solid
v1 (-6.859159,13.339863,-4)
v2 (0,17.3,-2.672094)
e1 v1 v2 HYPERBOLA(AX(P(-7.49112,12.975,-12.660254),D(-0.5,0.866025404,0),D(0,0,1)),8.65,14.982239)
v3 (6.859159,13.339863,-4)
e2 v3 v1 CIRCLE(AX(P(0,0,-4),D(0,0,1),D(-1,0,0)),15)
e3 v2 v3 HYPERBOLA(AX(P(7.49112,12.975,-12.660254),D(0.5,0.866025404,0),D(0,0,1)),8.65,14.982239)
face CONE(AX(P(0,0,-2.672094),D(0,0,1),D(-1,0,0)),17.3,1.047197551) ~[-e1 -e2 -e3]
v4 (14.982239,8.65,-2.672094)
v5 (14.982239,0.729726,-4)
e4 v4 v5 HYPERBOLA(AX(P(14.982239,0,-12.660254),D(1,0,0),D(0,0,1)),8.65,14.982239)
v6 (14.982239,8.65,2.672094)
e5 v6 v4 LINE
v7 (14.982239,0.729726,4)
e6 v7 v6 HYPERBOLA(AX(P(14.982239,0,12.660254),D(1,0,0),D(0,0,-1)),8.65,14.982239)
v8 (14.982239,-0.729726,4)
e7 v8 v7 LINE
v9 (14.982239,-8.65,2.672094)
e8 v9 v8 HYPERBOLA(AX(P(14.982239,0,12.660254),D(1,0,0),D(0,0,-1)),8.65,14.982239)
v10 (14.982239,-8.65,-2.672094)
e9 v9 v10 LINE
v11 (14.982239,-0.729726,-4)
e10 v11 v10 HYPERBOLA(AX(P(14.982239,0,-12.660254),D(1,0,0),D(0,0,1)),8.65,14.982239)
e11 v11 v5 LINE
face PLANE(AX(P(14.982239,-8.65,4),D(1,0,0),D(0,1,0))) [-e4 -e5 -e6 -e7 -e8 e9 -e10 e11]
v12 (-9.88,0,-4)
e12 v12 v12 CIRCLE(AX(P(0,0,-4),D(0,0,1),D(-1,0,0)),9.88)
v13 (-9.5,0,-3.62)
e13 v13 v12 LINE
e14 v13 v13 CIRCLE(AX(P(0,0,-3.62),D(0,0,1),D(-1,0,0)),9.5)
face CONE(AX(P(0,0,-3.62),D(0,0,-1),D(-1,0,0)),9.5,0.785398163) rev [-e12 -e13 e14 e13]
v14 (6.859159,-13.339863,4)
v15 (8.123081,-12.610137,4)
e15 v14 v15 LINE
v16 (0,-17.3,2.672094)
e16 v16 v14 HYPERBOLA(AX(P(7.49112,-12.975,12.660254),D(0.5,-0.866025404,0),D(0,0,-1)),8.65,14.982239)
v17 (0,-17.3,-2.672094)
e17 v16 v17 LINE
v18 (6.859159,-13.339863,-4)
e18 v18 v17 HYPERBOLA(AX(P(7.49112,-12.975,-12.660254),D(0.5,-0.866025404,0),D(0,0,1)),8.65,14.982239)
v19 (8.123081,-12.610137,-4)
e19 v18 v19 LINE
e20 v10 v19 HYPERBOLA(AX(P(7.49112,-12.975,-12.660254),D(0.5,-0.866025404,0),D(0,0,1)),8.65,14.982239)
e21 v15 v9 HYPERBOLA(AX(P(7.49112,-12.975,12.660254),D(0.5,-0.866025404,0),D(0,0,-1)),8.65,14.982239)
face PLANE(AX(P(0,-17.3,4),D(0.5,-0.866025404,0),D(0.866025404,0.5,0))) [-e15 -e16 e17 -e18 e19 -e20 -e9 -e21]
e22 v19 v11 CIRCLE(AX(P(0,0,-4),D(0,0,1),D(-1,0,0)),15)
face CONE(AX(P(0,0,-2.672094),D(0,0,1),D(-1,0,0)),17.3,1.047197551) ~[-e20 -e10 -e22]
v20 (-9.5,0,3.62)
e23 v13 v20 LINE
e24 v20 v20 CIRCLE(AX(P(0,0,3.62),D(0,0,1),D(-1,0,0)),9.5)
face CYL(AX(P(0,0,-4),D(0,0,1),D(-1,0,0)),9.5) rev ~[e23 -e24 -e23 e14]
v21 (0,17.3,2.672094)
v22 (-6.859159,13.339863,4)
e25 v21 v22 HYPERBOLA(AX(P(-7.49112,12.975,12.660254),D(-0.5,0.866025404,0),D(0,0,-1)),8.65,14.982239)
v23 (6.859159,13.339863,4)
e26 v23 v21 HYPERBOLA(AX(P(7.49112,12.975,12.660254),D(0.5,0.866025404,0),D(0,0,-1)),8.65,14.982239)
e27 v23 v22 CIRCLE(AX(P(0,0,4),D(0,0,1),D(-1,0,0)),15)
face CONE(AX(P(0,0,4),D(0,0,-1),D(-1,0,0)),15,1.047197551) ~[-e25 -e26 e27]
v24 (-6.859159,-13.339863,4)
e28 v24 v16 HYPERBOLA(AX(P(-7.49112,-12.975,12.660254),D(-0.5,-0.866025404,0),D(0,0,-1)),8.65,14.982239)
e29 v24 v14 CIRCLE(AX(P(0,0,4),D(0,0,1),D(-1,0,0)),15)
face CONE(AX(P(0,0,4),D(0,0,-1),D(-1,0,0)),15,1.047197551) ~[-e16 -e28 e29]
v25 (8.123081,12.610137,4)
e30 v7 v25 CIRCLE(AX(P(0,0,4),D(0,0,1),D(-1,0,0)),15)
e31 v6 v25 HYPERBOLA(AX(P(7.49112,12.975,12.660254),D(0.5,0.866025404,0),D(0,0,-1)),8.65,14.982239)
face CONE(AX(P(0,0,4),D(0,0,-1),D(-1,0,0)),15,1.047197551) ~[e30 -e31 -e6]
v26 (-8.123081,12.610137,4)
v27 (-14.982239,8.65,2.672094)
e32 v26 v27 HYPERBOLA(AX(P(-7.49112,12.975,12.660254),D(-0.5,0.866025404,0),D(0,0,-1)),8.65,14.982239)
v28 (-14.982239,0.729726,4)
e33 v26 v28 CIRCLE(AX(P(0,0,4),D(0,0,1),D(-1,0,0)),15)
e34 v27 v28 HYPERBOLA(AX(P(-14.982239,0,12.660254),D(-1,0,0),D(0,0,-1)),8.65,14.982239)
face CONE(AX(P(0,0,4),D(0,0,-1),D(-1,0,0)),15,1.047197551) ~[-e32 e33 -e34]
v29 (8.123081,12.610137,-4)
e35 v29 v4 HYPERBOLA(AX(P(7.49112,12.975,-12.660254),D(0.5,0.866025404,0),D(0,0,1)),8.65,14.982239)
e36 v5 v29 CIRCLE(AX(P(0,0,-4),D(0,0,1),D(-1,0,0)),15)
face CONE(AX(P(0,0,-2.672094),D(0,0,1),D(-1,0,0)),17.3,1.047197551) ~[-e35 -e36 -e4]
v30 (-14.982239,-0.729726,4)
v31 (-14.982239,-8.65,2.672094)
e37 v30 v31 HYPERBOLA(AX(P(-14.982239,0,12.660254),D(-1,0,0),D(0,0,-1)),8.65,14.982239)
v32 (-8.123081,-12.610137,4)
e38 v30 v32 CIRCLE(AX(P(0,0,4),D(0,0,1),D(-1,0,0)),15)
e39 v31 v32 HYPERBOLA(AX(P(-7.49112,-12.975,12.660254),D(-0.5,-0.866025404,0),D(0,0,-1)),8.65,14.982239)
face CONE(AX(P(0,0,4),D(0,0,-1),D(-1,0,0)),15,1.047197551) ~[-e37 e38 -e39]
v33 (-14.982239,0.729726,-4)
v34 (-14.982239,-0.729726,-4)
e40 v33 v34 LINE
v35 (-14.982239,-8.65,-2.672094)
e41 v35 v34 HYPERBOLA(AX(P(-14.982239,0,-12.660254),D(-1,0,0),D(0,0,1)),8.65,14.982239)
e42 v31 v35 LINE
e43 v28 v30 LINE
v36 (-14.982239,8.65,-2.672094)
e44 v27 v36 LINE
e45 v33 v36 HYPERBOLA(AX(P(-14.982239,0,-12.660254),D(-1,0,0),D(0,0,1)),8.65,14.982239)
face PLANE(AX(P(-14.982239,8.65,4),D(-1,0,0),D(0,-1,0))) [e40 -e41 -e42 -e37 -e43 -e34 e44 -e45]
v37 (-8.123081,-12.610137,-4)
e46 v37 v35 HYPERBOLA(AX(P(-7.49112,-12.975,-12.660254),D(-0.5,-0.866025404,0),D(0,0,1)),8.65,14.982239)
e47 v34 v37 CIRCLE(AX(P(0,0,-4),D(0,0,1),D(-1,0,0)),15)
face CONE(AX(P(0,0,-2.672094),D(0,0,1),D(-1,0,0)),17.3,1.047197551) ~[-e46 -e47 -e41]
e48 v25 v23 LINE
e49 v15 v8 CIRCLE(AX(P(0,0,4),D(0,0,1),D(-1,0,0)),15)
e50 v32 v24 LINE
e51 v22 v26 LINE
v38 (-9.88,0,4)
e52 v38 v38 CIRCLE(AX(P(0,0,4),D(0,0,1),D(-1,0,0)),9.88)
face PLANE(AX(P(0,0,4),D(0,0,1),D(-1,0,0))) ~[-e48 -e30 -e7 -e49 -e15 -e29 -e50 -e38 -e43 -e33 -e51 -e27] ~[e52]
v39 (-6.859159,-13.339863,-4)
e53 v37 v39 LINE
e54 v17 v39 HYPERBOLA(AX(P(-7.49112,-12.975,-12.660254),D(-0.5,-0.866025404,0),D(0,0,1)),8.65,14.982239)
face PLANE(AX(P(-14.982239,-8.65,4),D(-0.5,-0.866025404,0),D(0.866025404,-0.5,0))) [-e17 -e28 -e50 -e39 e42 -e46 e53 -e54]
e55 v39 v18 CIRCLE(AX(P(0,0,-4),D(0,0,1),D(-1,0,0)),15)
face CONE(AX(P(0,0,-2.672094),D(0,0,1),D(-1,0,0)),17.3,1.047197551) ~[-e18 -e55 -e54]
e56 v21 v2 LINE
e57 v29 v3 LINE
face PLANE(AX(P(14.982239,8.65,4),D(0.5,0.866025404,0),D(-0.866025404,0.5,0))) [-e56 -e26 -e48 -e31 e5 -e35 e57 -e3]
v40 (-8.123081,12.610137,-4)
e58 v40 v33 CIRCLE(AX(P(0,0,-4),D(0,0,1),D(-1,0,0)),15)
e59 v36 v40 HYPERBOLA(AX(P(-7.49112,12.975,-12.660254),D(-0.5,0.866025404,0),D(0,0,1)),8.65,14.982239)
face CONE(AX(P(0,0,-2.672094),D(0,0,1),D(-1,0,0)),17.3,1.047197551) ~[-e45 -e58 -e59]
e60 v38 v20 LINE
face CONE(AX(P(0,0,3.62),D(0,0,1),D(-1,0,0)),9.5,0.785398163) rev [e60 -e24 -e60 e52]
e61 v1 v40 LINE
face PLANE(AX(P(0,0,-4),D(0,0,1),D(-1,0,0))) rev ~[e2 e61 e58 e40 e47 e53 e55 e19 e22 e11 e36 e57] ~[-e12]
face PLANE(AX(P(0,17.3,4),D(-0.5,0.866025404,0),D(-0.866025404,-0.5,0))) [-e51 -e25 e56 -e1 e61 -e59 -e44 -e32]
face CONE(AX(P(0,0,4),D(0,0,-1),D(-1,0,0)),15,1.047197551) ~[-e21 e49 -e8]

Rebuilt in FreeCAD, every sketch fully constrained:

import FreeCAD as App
import Part
import Sketcher

V = App.Vector
Q = App.Units.Quantity


def edges_at(feature, points):
    """Names of the edges that pass closest to the given points."""
    edges = feature.Shape.Edges
    near = lambda p: min(range(len(edges)), key=lambda i: edges[i].distToShape(Part.Vertex(*p))[0])
    return sorted({f"Edge{near(p) + 1}" for p in points})

doc = App.newDocument("Part")
body = doc.addObject("PartDesign::Body", "Body")

# Sketch on YZ plane
sketch1 = body.newObject("Sketcher::SketchObject", "Sketch")
sketch1.AttachmentSupport = (doc.getObject("YZ_Plane"), [""])
sketch1.MapMode = "FlatFace"
sketch1.addGeometry([
    Part.LineSegment(V(15, 4, 0), V(9.5, 4, 0)),  # 0
    Part.LineSegment(V(9.5, 4, 0), V(9.5, -4, 0)),  # 1
    Part.LineSegment(V(9.5, -4, 0), V(15, -4, 0)),  # 2
    Part.LineSegment(V(15, -4, 0), V(17.3, -2.7, 0)),  # 3
    Part.LineSegment(V(17.3, -2.7, 0), V(17.3, 2.7, 0)),  # 4
    Part.LineSegment(V(17.3, 2.7, 0), V(15, 4, 0)),  # 5
], False)
sketch1.addConstraint([
    Sketcher.Constraint("Coincident", 0, 2, 1, 1),
    Sketcher.Constraint("Coincident", 1, 2, 2, 1),
    Sketcher.Constraint("Coincident", 2, 2, 3, 1),
    Sketcher.Constraint("Coincident", 3, 2, 4, 1),
    Sketcher.Constraint("Coincident", 4, 2, 5, 1),
    Sketcher.Constraint("Coincident", 5, 2, 0, 1),
    Sketcher.Constraint("Horizontal", 0),
    Sketcher.Constraint("Vertical", 1),
    Sketcher.Constraint("Horizontal", 2),
    Sketcher.Constraint("Vertical", 4),
    Sketcher.Constraint("Symmetric", 2, 2, 5, 2, -1),
    Sketcher.Constraint("Equal", 3, 5),
    Sketcher.Constraint("DistanceY", 1, 2, 1, 1, 8.0),
    Sketcher.Constraint("Angle", 3, Q("30 deg")),
    Sketcher.Constraint("DistanceX", 0, 2, 0, 1, 5.5),
    Sketcher.Constraint("DistanceX", -1, 1, 2, 2, 15.0),
    Sketcher.Constraint("DistanceX", -1, 1, 3, 2, 17.3),
])
revolution = body.newObject("PartDesign::Revolution", "Revolution")
revolution.Profile = sketch1
revolution.ReferenceAxis = (sketch1, ["V_Axis"])
revolution.Angle = 360

# Sketch on XY plane
sketch2 = body.newObject("Sketcher::SketchObject", "Sketch001")
sketch2.AttachmentSupport = (doc.getObject("XY_Plane"), [""])
sketch2.MapMode = "FlatFace"
sketch2.AttachmentOffset = App.Placement(V(0, 0, 4), App.Rotation())
sketch2.addGeometry([
    Part.LineSegment(V(-23, 23, 0), V(-23, -23, 0)),  # 0
    Part.LineSegment(V(-23, -23, 0), V(23, -23, 0)),  # 1
    Part.LineSegment(V(23, -23, 0), V(23, 23, 0)),  # 2
    Part.LineSegment(V(23, 23, 0), V(-23, 23, 0)),  # 3
    Part.LineSegment(V(15, 9, 0), V(15, -9, 0)),  # 4
    Part.LineSegment(V(15, -9, 0), V(0, -17, 0)),  # 5
    Part.LineSegment(V(0, -17, 0), V(-15, -9, 0)),  # 6
    Part.LineSegment(V(-15, -9, 0), V(-15, 9, 0)),  # 7
    Part.LineSegment(V(-15, 9, 0), V(0, 17, 0)),  # 8
    Part.LineSegment(V(0, 17, 0), V(15, 9, 0)),  # 9
], False)
sketch2.addConstraint([
    Sketcher.Constraint("Coincident", 0, 2, 1, 1),
    Sketcher.Constraint("Coincident", 1, 2, 2, 1),
    Sketcher.Constraint("Coincident", 2, 2, 3, 1),
    Sketcher.Constraint("Coincident", 3, 2, 0, 1),
    Sketcher.Constraint("Coincident", 4, 2, 5, 1),
    Sketcher.Constraint("Coincident", 5, 2, 6, 1),
    Sketcher.Constraint("Coincident", 6, 2, 7, 1),
    Sketcher.Constraint("Coincident", 7, 2, 8, 1),
    Sketcher.Constraint("Coincident", 8, 2, 9, 1),
    Sketcher.Constraint("Coincident", 9, 2, 4, 1),
    Sketcher.Constraint("Vertical", 0),
    Sketcher.Constraint("Horizontal", 1),
    Sketcher.Constraint("Vertical", 2),
    Sketcher.Constraint("Horizontal", 3),
    Sketcher.Constraint("Vertical", 4),
    Sketcher.Constraint("Vertical", 7),
    Sketcher.Constraint("Symmetric", 0, 2, 2, 2, -1, 1),
    Sketcher.Constraint("Symmetric", 4, 2, 7, 2, -1, 1),
    Sketcher.Constraint("Symmetric", 5, 2, 8, 2, -1, 1),
    Sketcher.Constraint("PointOnObject", 5, 2, -2),
    Sketcher.Constraint("Parallel", 6, 9),
    Sketcher.Constraint("Horizontal", 4, 2, 6, 2),
    Sketcher.Constraint("Equal", 3, 0),
    Sketcher.Constraint("Angle", 5, Q("-150 deg")),
    Sketcher.Constraint("DistanceY", 4, 2, 4, 1, 17.3),
    Sketcher.Constraint("Distance", 5, 17.3),
    Sketcher.Constraint("DistanceX", 1, 1, 1, 2, 46.516),
])
pocket1 = body.newObject("PartDesign::Pocket", "Pocket")
pocket1.Profile = sketch2
pocket1.Type = "ThroughAll"
doc.recompute()

chamfer = body.newObject("PartDesign::Chamfer", "Chamfer")
chamfer.Base = (pocket1, edges_at(pocket1, [(9.5, 0, 4), (9.5, 0, -4)]))
chamfer.Size = 0.38

doc.recompute()
